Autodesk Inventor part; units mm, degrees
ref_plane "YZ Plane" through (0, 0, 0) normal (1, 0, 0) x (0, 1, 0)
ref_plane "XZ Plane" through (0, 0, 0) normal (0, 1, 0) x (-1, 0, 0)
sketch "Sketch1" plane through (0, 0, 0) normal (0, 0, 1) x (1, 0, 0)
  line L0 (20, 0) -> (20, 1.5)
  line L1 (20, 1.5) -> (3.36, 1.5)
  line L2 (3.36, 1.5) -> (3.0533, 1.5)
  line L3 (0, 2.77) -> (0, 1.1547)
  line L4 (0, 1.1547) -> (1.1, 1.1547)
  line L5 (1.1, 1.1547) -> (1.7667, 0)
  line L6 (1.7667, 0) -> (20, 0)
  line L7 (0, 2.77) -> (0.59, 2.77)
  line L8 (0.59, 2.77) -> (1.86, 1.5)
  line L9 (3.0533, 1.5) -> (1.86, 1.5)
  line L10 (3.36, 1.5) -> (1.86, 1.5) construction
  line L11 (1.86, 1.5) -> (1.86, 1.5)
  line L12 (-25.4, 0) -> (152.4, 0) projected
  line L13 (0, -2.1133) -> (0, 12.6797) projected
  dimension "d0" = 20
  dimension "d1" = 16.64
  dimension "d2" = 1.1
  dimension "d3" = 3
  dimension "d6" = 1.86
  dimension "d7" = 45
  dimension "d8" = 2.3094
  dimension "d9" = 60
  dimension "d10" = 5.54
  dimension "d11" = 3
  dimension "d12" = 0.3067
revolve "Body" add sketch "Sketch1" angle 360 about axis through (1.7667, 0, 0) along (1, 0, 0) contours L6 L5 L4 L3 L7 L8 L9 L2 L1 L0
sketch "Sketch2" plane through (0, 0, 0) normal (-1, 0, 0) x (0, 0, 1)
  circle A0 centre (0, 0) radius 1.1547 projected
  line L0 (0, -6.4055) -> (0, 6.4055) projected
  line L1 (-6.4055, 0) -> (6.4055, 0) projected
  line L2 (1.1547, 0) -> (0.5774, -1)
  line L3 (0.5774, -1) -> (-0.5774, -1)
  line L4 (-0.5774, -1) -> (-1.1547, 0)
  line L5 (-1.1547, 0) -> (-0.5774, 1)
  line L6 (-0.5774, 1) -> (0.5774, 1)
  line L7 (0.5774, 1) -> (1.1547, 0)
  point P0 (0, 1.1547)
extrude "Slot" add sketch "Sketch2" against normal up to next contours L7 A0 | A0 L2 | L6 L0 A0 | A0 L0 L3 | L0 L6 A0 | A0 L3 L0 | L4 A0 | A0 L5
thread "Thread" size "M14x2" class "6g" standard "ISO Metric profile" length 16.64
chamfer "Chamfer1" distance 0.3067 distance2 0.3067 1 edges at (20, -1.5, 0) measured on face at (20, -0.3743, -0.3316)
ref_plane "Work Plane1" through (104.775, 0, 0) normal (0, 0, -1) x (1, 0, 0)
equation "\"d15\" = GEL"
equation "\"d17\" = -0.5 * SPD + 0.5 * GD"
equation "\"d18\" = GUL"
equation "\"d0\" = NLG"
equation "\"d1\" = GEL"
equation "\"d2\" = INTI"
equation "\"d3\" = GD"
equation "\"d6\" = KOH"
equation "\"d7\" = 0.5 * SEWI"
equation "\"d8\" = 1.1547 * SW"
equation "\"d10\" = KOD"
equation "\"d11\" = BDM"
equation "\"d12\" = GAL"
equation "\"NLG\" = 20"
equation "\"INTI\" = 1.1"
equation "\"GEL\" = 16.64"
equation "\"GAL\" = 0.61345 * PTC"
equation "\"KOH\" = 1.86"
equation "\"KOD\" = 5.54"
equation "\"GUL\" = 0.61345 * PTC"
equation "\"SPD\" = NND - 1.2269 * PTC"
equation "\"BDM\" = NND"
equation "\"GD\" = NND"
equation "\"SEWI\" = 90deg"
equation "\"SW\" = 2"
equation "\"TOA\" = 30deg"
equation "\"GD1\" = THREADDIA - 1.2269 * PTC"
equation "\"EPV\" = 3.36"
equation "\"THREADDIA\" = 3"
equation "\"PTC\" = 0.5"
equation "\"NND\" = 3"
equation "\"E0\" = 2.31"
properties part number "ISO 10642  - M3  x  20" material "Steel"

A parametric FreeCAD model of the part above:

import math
import FreeCAD as App
import Part
import Sketcher
Q = App.Units.Quantity


def edges_at(feature, points):
    """Names of the edges that pass closest to the given points."""
    edges = feature.Shape.Edges
    near = lambda p: min(range(len(edges)), key=lambda i: edges[i].distToShape(Part.Vertex(*p))[0])
    return sorted({f"Edge{near(p) + 1}" for p in points})

doc = App.newDocument("Part")
body = doc.addObject("PartDesign::Body", "Body")

# Sketch on XY plane
sketch1 = doc.addObject("Sketcher::SketchObject", "Sketch")
body.addObject(sketch1)
sketch1.AttachmentSupport = (doc.XY_Plane, [""])
sketch1.MapMode = "FlatFace"
sketch1.addGeometry(Part.LineSegment(App.Vector(1.7667, 0, 0), App.Vector(20, 0, 0)), False)
sketch1.addGeometry(Part.LineSegment(App.Vector(20, 0, 0), App.Vector(20, 1.5, 0)), False)
sketch1.addGeometry(Part.LineSegment(App.Vector(20, 1.5, 0), App.Vector(1.86, 1.5, 0)), False)
sketch1.addGeometry(Part.LineSegment(App.Vector(1.86, 1.5, 0), App.Vector(0.59, 2.77, 0)), False)
sketch1.addGeometry(Part.LineSegment(App.Vector(0.59, 2.77, 0), App.Vector(0, 2.77, 0)), False)
sketch1.addGeometry(Part.LineSegment(App.Vector(0, 2.77, 0), App.Vector(0, 1.1547, 0)), False)
sketch1.addGeometry(Part.LineSegment(App.Vector(0, 1.1547, 0), App.Vector(1.1, 1.1547, 0)), False)
sketch1.addGeometry(Part.LineSegment(App.Vector(1.1, 1.1547, 0), App.Vector(1.7667, 0, 0)), False)
sketch1.addConstraint(Sketcher.Constraint("Coincident", 0, 2, 1, 1))
sketch1.addConstraint(Sketcher.Constraint("Coincident", 1, 2, 2, 1))
sketch1.addConstraint(Sketcher.Constraint("Coincident", 2, 2, 3, 1))
sketch1.addConstraint(Sketcher.Constraint("Coincident", 3, 2, 4, 1))
sketch1.addConstraint(Sketcher.Constraint("Coincident", 4, 2, 5, 1))
sketch1.addConstraint(Sketcher.Constraint("Coincident", 5, 2, 6, 1))
sketch1.addConstraint(Sketcher.Constraint("Coincident", 6, 2, 7, 1))
sketch1.addConstraint(Sketcher.Constraint("Coincident", 7, 2, 0, 1))
sketch1.addConstraint(Sketcher.Constraint("Horizontal", 0))
sketch1.addConstraint(Sketcher.Constraint("Vertical", 1))
sketch1.addConstraint(Sketcher.Constraint("Horizontal", 2))
sketch1.addConstraint(Sketcher.Constraint("Horizontal", 4))
sketch1.addConstraint(Sketcher.Constraint("Vertical", 5))
sketch1.addConstraint(Sketcher.Constraint("Horizontal", 6))
sketch1.addConstraint(Sketcher.Constraint("PointOnObject", 0, 2, -1))
sketch1.addConstraint(Sketcher.Constraint("PointOnObject", 4, 2, -2))
sketch1.addConstraint(Sketcher.Constraint("DistanceX", 6, 1, 6, 2, Q("1.1 mm")))
sketch1.addConstraint(Sketcher.Constraint("DistanceX", -1, 1, 0, 2, Q("20 mm")))
sketch1.addConstraint(Sketcher.Constraint("DistanceX", -1, 1, 2, 2, Q("1.86 mm")))
sketch1.addConstraint(Sketcher.Constraint("Angle", 3, Q("135 deg")))
sketch1.addConstraint(Sketcher.Constraint("DistanceY", 1, 1, 1, 2, Q("1.5 mm")))
sketch1.addConstraint(Sketcher.Constraint("DistanceX", 4, 2, 4, 1, Q("0.59 mm")))
sketch1.addConstraint(Sketcher.Constraint("DistanceX", 0, 1, 0, 2, Q("18.2333 mm")))
sketch1.addConstraint(Sketcher.Constraint("DistanceY", 5, 2, 5, 1, Q("1.6153 mm")))
revolution = doc.addObject("PartDesign::Revolution", "Revolution")
body.addObject(revolution)
revolution.Profile = sketch1
revolution.ReferenceAxis = (sketch1, ["H_Axis"])
revolution.Angle = 360

# Sketch on YZ plane
sketch2 = doc.addObject("Sketcher::SketchObject", "Sketch001")
body.addObject(sketch2)
sketch2.AttachmentSupport = (doc.YZ_Plane, [""])
sketch2.MapMode = "FlatFace"
sketch2.addGeometry(Part.LineSegment(App.Vector(1, 0.5774, 0), App.Vector(0, 1.1547, 0)), False)
sketch2.addGeometry(Part.ArcOfCircle(Part.Circle(App.Vector(0, 0, 0), App.Vector(0, 0, 1), 1.1547), math.radians(30.002137), math.radians(90)), False)
sketch2.addGeometry(Part.ArcOfCircle(Part.Circle(App.Vector(0, 0, 0), App.Vector(0, 0, 1), 1.1547), math.radians(90), math.radians(149.997863)), False)
sketch2.addGeometry(Part.LineSegment(App.Vector(0, 1.1547, 0), App.Vector(-1, 0.5774, 0)), False)
sketch2.addGeometry(Part.ArcOfCircle(Part.Circle(App.Vector(0, 0, 0), App.Vector(0, 0, 1), 1.1547), math.radians(-30.002137), math.radians(30.002137)), False)
sketch2.addGeometry(Part.LineSegment(App.Vector(1, 0.5774, 0), App.Vector(1, -0.5774, 0)), False)
sketch2.addGeometry(Part.LineSegment(App.Vector(-1, 0.5774, 0), App.Vector(-1, -0.5774, 0)), False)
sketch2.addGeometry(Part.ArcOfCircle(Part.Circle(App.Vector(0, 0, 0), App.Vector(0, 0, 1), 1.1547), math.radians(149.997863), math.radians(210.002137)), False)
sketch2.addGeometry(Part.LineSegment(App.Vector(-1, -0.5774, 0), App.Vector(0, -1.1547, 0)), False)
sketch2.addGeometry(Part.ArcOfCircle(Part.Circle(App.Vector(0, 0, 0), App.Vector(0, 0, 1), 1.1547), math.radians(-149.997863), math.radians(-90)), False)
sketch2.addGeometry(Part.ArcOfCircle(Part.Circle(App.Vector(0, 0, 0), App.Vector(0, 0, 1), 1.1547), math.radians(-90), math.radians(-30.002137)), False)
sketch2.addGeometry(Part.LineSegment(App.Vector(0, -1.1547, 0), App.Vector(1, -0.5774, 0)), False)
sketch2.addConstraint(Sketcher.Constraint("Coincident", 0, 1, 1, 1))
sketch2.addConstraint(Sketcher.Constraint("Coincident", 1, 2, 0, 2))
sketch2.addConstraint(Sketcher.Constraint("Coincident", 2, 1, 3, 1))
sketch2.addConstraint(Sketcher.Constraint("Coincident", 3, 2, 2, 2))
sketch2.addConstraint(Sketcher.Constraint("Coincident", 4, 1, 5, 2))
sketch2.addConstraint(Sketcher.Constraint("Coincident", 5, 1, 4, 2))
sketch2.addConstraint(Sketcher.Constraint("Coincident", 6, 1, 7, 1))
sketch2.addConstraint(Sketcher.Constraint("Coincident", 7, 2, 6, 2))
sketch2.addConstraint(Sketcher.Constraint("Coincident", 8, 1, 9, 1))
sketch2.addConstraint(Sketcher.Constraint("Coincident", 9, 2, 8, 2))
sketch2.addConstraint(Sketcher.Constraint("Coincident", 10, 1, 11, 1))
sketch2.addConstraint(Sketcher.Constraint("Coincident", 11, 2, 10, 2))
sketch2.addConstraint(Sketcher.Constraint("Vertical", 5))
sketch2.addConstraint(Sketcher.Constraint("Vertical", 6))
sketch2.addConstraint(Sketcher.Constraint("Coincident", 1, 3, -1, 1))
sketch2.addConstraint(Sketcher.Constraint("Coincident", 2, 3, -1, 1))
sketch2.addConstraint(Sketcher.Constraint("Coincident", 4, 3, -1, 1))
sketch2.addConstraint(Sketcher.Constraint("Coincident", 7, 3, -1, 1))
sketch2.addConstraint(Sketcher.Constraint("Coincident", 9, 3, -1, 1))
sketch2.addConstraint(Sketcher.Constraint("Coincident", 10, 3, -1, 1))
sketch2.addConstraint(Sketcher.Constraint("Coincident", 2, 1, 1, 2))
sketch2.addConstraint(Sketcher.Constraint("Coincident", 5, 1, 0, 1))
sketch2.addConstraint(Sketcher.Constraint("Coincident", 6, 1, 3, 2))
sketch2.addConstraint(Sketcher.Constraint("Coincident", 8, 1, 7, 2))
sketch2.addConstraint(Sketcher.Constraint("Coincident", 10, 1, 9, 2))
sketch2.addConstraint(Sketcher.Constraint("PointOnObject", 1, 2, -2))
sketch2.addConstraint(Sketcher.Constraint("PointOnObject", 9, 2, -2))
sketch2.addConstraint(Sketcher.Constraint("Parallel", 0, 8))
sketch2.addConstraint(Sketcher.Constraint("Parallel", 3, 11))
sketch2.addConstraint(Sketcher.Constraint("DistanceX", -1, 1, 0, 1, Q("1 mm")))
sketch2.addConstraint(Sketcher.Constraint("Radius", 1, Q("1.1547 mm")))
pad1 = doc.addObject("PartDesign::Pad", "Pad")
body.addObject(pad1)
pad1.Profile = sketch2
pad1.Type = "UpToFirst"
doc.recompute()

chamfer = doc.addObject("PartDesign::Chamfer", "Chamfer")
body.addObject(chamfer)
chamfer.Base = (pad1, edges_at(pad1, [(20, -1.5, 0)]))
chamfer.ChamferType = "Two distances"
chamfer.Size = 0.3067
chamfer.Size2 = 0.3067

doc.recompute()
